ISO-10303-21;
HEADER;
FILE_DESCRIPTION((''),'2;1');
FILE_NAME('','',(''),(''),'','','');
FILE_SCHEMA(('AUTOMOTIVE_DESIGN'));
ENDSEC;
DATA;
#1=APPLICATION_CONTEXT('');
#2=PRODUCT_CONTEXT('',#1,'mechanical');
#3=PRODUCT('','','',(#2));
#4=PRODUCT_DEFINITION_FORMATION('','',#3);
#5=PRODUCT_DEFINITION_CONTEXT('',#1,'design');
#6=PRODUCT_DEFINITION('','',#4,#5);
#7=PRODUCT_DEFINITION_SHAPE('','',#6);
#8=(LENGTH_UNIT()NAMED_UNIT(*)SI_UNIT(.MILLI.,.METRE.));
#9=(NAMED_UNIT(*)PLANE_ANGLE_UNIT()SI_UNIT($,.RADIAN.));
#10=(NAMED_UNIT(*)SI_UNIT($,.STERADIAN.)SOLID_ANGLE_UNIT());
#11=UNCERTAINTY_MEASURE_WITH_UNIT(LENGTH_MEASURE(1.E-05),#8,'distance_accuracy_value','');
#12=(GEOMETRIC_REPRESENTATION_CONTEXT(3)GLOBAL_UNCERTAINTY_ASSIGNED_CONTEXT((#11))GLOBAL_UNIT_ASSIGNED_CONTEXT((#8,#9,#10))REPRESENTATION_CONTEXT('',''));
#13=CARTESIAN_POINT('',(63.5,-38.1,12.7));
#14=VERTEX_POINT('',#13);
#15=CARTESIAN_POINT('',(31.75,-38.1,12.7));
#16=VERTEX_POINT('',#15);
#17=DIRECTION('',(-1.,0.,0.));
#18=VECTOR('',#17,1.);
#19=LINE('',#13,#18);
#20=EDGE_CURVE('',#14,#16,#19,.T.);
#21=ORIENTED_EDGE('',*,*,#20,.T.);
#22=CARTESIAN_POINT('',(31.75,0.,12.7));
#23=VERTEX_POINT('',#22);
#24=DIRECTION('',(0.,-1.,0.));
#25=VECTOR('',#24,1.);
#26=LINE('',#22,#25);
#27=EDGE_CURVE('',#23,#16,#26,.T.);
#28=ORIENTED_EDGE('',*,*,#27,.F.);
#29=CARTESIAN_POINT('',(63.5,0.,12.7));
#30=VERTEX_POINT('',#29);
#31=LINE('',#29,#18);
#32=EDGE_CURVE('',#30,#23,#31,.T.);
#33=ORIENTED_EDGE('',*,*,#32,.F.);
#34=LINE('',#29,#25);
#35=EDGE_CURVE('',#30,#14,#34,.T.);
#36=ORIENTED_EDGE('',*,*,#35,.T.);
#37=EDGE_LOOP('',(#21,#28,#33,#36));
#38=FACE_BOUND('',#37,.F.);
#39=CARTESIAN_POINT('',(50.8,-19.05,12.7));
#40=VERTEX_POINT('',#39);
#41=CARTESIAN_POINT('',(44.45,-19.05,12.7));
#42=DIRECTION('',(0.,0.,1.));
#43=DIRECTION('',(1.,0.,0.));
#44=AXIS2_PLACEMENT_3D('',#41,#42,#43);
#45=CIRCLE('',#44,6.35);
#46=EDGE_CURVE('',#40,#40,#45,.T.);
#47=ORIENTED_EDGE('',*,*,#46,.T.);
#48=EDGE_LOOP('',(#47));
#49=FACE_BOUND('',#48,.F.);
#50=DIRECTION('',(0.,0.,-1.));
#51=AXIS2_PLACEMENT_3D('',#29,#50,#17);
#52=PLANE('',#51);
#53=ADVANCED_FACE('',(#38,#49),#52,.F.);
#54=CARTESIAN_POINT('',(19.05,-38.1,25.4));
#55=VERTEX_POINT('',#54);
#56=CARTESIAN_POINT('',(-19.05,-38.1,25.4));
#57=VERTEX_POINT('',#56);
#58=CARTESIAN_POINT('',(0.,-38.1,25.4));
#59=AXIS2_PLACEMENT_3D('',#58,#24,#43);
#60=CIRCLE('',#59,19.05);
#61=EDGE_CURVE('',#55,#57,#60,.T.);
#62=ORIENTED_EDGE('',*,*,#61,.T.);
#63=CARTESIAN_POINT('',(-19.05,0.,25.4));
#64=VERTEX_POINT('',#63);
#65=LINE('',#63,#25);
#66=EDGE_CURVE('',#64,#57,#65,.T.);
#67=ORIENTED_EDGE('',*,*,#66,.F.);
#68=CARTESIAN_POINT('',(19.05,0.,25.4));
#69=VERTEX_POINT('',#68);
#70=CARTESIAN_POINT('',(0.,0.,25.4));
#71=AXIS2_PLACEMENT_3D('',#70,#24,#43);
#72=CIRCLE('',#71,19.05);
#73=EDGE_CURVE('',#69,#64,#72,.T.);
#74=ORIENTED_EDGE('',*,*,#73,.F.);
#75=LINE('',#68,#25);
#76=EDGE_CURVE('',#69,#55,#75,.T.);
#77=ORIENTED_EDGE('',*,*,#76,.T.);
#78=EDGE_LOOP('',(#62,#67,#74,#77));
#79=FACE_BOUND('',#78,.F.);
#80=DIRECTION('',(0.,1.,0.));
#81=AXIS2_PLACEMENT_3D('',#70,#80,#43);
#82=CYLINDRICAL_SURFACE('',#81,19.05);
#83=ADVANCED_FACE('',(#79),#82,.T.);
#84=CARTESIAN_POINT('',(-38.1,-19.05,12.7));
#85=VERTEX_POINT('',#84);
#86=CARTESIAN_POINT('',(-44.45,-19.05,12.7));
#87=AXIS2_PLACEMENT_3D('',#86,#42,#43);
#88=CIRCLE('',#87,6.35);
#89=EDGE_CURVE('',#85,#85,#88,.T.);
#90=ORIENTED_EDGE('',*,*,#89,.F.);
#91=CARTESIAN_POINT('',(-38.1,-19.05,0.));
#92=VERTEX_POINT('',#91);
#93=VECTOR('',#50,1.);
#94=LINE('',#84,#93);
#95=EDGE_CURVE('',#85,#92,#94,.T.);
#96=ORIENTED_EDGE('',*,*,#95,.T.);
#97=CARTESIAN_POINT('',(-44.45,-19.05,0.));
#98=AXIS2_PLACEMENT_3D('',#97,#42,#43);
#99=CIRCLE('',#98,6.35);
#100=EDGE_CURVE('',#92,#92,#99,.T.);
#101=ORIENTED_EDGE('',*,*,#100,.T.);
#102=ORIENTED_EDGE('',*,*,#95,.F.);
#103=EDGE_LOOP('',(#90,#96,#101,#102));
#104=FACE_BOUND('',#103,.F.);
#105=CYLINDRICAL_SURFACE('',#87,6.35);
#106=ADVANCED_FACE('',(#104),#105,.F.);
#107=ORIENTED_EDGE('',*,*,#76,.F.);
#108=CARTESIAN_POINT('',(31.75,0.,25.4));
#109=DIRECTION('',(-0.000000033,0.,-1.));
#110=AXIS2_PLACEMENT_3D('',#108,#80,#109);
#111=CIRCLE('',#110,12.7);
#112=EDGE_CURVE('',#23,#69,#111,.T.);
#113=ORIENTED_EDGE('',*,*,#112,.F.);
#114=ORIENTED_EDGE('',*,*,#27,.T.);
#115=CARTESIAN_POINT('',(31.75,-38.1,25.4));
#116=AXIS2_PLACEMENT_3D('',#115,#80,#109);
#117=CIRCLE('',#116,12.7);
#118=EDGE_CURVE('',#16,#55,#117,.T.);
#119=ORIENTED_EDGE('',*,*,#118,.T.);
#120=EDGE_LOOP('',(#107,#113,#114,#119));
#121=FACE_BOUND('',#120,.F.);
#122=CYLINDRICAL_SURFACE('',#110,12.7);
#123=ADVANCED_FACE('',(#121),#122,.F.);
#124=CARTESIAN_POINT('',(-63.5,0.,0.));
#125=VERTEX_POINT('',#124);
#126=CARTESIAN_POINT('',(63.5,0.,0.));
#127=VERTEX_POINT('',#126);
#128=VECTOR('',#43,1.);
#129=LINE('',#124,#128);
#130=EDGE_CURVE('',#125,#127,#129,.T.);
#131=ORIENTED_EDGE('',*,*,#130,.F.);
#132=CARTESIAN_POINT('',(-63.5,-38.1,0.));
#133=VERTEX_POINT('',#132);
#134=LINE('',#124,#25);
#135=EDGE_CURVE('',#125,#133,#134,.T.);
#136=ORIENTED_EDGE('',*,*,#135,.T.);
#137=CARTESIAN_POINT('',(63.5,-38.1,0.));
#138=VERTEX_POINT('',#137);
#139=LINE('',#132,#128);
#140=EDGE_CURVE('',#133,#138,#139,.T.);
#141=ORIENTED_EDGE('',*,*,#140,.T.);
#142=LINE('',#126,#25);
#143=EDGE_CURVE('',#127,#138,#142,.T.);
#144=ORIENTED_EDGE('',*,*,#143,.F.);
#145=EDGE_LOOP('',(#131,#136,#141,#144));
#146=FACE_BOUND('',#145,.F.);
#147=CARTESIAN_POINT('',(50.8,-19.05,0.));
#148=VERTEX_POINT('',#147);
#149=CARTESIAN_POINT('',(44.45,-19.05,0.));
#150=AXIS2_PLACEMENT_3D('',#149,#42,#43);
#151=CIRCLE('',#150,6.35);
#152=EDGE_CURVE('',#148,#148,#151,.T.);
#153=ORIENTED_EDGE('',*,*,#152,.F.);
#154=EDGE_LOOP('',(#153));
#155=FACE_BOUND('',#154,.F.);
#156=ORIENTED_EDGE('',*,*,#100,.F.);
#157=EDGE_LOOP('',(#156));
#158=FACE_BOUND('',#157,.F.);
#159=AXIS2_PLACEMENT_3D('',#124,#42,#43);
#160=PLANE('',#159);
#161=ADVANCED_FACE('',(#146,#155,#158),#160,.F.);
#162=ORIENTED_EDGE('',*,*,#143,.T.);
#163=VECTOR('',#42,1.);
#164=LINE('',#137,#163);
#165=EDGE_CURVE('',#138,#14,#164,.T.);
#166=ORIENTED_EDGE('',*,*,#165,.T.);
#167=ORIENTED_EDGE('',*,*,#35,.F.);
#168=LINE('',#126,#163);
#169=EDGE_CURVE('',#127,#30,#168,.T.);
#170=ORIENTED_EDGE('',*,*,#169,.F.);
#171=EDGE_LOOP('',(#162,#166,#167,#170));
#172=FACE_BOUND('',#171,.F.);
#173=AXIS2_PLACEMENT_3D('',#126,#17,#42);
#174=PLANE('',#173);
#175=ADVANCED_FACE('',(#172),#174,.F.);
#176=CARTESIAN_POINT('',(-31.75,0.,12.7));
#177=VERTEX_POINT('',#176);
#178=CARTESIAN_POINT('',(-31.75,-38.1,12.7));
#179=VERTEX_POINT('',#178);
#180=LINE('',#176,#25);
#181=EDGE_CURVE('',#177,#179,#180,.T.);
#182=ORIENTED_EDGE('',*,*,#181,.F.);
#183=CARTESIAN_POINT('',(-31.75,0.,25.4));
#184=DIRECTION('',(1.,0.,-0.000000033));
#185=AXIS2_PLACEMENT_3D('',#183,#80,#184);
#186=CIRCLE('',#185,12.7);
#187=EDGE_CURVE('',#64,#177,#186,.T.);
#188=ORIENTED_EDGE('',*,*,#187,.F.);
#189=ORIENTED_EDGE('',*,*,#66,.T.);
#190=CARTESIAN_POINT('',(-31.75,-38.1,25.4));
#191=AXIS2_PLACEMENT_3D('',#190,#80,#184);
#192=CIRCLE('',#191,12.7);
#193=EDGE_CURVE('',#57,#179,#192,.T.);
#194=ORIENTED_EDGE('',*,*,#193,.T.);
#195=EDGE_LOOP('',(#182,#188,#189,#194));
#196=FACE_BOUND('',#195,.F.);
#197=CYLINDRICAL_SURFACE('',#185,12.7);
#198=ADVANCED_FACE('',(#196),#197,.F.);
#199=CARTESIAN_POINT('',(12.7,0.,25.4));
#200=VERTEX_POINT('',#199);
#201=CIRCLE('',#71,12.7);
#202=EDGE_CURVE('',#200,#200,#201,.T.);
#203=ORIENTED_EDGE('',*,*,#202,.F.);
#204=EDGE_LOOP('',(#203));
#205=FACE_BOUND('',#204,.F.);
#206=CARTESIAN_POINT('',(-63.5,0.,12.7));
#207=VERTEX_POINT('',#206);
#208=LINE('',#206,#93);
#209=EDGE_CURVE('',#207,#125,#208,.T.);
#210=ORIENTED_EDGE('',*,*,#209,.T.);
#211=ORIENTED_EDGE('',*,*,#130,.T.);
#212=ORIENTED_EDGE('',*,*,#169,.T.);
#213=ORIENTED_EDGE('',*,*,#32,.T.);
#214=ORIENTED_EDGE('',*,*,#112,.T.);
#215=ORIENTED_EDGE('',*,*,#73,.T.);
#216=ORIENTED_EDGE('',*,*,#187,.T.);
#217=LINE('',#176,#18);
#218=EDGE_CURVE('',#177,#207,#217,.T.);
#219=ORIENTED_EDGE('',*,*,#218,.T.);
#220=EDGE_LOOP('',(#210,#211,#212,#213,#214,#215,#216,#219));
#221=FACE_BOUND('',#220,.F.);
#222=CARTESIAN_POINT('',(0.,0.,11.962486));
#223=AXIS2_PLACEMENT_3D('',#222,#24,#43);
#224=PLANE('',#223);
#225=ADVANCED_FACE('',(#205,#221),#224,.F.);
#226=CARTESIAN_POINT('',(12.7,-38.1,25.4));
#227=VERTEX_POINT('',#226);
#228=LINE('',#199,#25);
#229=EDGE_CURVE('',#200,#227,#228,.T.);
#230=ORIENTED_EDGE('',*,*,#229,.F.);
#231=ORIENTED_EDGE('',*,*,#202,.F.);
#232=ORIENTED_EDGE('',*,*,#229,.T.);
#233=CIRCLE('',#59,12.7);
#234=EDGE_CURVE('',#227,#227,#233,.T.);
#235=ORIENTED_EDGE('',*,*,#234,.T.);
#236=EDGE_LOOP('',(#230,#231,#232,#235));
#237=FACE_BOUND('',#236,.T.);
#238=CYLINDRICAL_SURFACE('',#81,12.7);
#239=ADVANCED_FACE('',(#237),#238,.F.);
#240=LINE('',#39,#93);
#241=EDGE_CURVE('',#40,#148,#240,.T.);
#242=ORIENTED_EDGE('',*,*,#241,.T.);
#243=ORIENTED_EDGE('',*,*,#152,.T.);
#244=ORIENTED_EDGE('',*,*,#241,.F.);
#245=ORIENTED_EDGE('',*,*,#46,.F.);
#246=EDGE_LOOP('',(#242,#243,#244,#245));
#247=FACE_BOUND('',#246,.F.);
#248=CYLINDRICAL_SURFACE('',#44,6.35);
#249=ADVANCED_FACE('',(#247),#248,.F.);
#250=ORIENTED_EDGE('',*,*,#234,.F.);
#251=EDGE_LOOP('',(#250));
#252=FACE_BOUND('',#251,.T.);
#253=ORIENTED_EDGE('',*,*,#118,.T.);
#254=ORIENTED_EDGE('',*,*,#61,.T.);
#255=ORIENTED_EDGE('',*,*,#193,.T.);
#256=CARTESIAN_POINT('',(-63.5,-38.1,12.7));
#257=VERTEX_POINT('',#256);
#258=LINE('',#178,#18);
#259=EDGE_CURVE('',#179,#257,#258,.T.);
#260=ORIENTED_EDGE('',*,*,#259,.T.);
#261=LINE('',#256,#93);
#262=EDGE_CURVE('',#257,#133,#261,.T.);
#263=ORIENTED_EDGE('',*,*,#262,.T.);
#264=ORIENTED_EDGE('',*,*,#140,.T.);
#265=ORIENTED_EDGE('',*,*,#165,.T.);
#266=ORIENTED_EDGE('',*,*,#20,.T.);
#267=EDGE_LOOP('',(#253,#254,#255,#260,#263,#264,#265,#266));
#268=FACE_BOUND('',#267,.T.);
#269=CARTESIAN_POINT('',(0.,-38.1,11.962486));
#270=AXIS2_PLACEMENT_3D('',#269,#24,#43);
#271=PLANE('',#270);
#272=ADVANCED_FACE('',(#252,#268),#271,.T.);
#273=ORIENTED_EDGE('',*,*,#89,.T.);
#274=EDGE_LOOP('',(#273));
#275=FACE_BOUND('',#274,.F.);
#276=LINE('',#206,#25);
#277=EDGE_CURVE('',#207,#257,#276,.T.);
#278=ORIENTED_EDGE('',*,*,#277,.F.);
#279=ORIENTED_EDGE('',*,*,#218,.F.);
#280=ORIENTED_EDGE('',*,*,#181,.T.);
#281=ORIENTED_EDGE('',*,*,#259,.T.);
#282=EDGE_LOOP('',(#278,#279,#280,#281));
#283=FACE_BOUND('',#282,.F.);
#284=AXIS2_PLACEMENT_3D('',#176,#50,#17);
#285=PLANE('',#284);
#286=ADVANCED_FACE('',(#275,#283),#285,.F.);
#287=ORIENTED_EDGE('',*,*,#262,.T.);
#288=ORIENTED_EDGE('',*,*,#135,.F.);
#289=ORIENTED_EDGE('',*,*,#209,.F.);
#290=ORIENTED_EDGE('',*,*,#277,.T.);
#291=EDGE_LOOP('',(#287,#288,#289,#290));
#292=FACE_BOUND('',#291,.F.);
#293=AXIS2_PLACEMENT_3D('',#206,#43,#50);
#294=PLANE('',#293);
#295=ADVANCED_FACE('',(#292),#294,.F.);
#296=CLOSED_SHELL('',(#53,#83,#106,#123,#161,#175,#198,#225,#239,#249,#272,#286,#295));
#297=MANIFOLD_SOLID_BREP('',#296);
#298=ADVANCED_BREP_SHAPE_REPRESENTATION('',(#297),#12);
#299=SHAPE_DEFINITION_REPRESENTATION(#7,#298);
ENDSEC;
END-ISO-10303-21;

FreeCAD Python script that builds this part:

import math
import FreeCAD as App
import Part
import Sketcher
from FreeCAD import Vector
Q = App.Units.Quantity

doc = App.newDocument("Part")
body = doc.addObject("PartDesign::Body", "Body")

# Sketch on XZ plane
sketch1 = body.newObject("Sketcher::SketchObject", "Sketch")
sketch1.AttachmentSupport = (doc.getObject("XZ_Plane"), [""])
sketch1.MapMode = "FlatFace"
sketch1.addGeometry(Part.LineSegment(Vector(-64, 0, 0), Vector(64, 0, 0)), False)
sketch1.addGeometry(Part.LineSegment(Vector(64, 0, 0), Vector(64, 13, 0)), False)
sketch1.addGeometry(Part.LineSegment(Vector(64, 13, 0), Vector(32, 13, 0)), False)
sketch1.addGeometry(Part.ArcOfCircle(Part.Circle(Vector(32, 25, 0), Vector(0, 0, 1), 13), math.radians(-180), math.radians(-90)), False)
sketch1.addGeometry(Part.ArcOfCircle(Part.Circle(Vector(0, 25, 0), Vector(0, 0, 1), 19), math.radians(0), math.radians(180)), False)
sketch1.addGeometry(Part.ArcOfCircle(Part.Circle(Vector(-32, 25, 0), Vector(0, 0, 1), 13), math.radians(-90), math.radians(0)), False)
sketch1.addGeometry(Part.LineSegment(Vector(-32, 13, 0), Vector(-64, 13, 0)), False)
sketch1.addGeometry(Part.LineSegment(Vector(-64, 13, 0), Vector(-64, 0, 0)), False)
sketch1.addGeometry(Part.Circle(Vector(0, 25, 0), Vector(0, 0, 1), 13), False)
sketch1.addConstraint(Sketcher.Constraint("Coincident", 0, 2, 1, 1))
sketch1.addConstraint(Sketcher.Constraint("Coincident", 1, 2, 2, 1))
sketch1.addConstraint(Sketcher.Constraint("Tangent", 2, 2, 3, 2))
sketch1.addConstraint(Sketcher.Constraint("Tangent", 3, 1, 4, 1))
sketch1.addConstraint(Sketcher.Constraint("Tangent", 4, 2, 5, 2))
sketch1.addConstraint(Sketcher.Constraint("Tangent", 5, 1, 6, 1))
sketch1.addConstraint(Sketcher.Constraint("Coincident", 6, 2, 7, 1))
sketch1.addConstraint(Sketcher.Constraint("Coincident", 7, 2, 0, 1))
sketch1.addConstraint(Sketcher.Constraint("Horizontal", 0))
sketch1.addConstraint(Sketcher.Constraint("Vertical", 1))
sketch1.addConstraint(Sketcher.Constraint("Horizontal", 2))
sketch1.addConstraint(Sketcher.Constraint("Horizontal", 6))
sketch1.addConstraint(Sketcher.Constraint("Vertical", 7))
sketch1.addConstraint(Sketcher.Constraint("Coincident", 8, 3, 4, 3))
sketch1.addConstraint(Sketcher.Constraint("Equal", 3, 5))
sketch1.addConstraint(Sketcher.Constraint("Equal", 5, 8))
sketch1.addConstraint(Sketcher.Constraint("Symmetric", 0, 2, 7, 2, -1, 1))
sketch1.addConstraint(Sketcher.Constraint("Symmetric", 3, 3, 5, 3, -2))
sketch1.addConstraint(Sketcher.Constraint("Horizontal", 3, 3, 4, 3))
sketch1.addConstraint(Sketcher.Constraint("Diameter", 8, Q("1 in")))
sketch1.addConstraint(Sketcher.Constraint("DistanceX", 0, 1, 0, 2, Q("5 in")))
sketch1.addConstraint(Sketcher.Constraint("Radius", 4, Q("0.75 in")))
sketch1.addConstraint(Sketcher.Constraint("DistanceY", 1, 1, 1, 2, Q("0.5 in")))
pad1 = body.newObject("PartDesign::Pad", "Pad")
pad1.Profile = sketch1
pad1.Length = Q("1.5 in")

# Sketch on XY plane
sketch2 = body.newObject("Sketcher::SketchObject", "Sketch001")
sketch2.AttachmentSupport = (doc.getObject("XY_Plane"), [""])
sketch2.MapMode = "FlatFace"
sketch2.AttachmentOffset = App.Placement(Vector(0, 0, 0.5 * 25.4), App.Rotation())
sketch2.addGeometry(Part.Circle(Vector(44, -19, 0), Vector(0, 0, 1), 6), False)
sketch2.addConstraint(Sketcher.Constraint("Diameter", 0, Q("0.5 in")))
sketch2.addConstraint(Sketcher.Constraint("DistanceX", -1, 1, 0, 3, Q("1.75 in")))
sketch2.addConstraint(Sketcher.Constraint("DistanceY", 0, 3, -1, 1, Q("0.75 in")))
pocket1 = body.newObject("PartDesign::Pocket", "Pocket")
pocket1.Profile = sketch2
pocket1.Length = Q("1 in")

# Sketch on XY plane
sketch3 = body.newObject("Sketcher::SketchObject", "Sketch002")
sketch3.AttachmentSupport = (doc.getObject("XY_Plane"), [""])
sketch3.MapMode = "FlatFace"
sketch3.AttachmentOffset = App.Placement(Vector(0, 0, 0.5 * 25.4), App.Rotation())
sketch3.addGeometry(Part.Circle(Vector(-44, -19, 0), Vector(0, 0, 1), 6), False)
sketch3.addConstraint(Sketcher.Constraint("Diameter", 0, Q("0.5 in")))
sketch3.addConstraint(Sketcher.Constraint("DistanceX", 0, 3, -1, 1, Q("1.75 in")))
sketch3.addConstraint(Sketcher.Constraint("DistanceY", 0, 3, -1, 1, Q("0.75 in")))
pocket2 = body.newObject("PartDesign::Pocket", "Pocket001")
pocket2.Profile = sketch3
pocket2.Length = Q("1 in")

doc.recompute()
